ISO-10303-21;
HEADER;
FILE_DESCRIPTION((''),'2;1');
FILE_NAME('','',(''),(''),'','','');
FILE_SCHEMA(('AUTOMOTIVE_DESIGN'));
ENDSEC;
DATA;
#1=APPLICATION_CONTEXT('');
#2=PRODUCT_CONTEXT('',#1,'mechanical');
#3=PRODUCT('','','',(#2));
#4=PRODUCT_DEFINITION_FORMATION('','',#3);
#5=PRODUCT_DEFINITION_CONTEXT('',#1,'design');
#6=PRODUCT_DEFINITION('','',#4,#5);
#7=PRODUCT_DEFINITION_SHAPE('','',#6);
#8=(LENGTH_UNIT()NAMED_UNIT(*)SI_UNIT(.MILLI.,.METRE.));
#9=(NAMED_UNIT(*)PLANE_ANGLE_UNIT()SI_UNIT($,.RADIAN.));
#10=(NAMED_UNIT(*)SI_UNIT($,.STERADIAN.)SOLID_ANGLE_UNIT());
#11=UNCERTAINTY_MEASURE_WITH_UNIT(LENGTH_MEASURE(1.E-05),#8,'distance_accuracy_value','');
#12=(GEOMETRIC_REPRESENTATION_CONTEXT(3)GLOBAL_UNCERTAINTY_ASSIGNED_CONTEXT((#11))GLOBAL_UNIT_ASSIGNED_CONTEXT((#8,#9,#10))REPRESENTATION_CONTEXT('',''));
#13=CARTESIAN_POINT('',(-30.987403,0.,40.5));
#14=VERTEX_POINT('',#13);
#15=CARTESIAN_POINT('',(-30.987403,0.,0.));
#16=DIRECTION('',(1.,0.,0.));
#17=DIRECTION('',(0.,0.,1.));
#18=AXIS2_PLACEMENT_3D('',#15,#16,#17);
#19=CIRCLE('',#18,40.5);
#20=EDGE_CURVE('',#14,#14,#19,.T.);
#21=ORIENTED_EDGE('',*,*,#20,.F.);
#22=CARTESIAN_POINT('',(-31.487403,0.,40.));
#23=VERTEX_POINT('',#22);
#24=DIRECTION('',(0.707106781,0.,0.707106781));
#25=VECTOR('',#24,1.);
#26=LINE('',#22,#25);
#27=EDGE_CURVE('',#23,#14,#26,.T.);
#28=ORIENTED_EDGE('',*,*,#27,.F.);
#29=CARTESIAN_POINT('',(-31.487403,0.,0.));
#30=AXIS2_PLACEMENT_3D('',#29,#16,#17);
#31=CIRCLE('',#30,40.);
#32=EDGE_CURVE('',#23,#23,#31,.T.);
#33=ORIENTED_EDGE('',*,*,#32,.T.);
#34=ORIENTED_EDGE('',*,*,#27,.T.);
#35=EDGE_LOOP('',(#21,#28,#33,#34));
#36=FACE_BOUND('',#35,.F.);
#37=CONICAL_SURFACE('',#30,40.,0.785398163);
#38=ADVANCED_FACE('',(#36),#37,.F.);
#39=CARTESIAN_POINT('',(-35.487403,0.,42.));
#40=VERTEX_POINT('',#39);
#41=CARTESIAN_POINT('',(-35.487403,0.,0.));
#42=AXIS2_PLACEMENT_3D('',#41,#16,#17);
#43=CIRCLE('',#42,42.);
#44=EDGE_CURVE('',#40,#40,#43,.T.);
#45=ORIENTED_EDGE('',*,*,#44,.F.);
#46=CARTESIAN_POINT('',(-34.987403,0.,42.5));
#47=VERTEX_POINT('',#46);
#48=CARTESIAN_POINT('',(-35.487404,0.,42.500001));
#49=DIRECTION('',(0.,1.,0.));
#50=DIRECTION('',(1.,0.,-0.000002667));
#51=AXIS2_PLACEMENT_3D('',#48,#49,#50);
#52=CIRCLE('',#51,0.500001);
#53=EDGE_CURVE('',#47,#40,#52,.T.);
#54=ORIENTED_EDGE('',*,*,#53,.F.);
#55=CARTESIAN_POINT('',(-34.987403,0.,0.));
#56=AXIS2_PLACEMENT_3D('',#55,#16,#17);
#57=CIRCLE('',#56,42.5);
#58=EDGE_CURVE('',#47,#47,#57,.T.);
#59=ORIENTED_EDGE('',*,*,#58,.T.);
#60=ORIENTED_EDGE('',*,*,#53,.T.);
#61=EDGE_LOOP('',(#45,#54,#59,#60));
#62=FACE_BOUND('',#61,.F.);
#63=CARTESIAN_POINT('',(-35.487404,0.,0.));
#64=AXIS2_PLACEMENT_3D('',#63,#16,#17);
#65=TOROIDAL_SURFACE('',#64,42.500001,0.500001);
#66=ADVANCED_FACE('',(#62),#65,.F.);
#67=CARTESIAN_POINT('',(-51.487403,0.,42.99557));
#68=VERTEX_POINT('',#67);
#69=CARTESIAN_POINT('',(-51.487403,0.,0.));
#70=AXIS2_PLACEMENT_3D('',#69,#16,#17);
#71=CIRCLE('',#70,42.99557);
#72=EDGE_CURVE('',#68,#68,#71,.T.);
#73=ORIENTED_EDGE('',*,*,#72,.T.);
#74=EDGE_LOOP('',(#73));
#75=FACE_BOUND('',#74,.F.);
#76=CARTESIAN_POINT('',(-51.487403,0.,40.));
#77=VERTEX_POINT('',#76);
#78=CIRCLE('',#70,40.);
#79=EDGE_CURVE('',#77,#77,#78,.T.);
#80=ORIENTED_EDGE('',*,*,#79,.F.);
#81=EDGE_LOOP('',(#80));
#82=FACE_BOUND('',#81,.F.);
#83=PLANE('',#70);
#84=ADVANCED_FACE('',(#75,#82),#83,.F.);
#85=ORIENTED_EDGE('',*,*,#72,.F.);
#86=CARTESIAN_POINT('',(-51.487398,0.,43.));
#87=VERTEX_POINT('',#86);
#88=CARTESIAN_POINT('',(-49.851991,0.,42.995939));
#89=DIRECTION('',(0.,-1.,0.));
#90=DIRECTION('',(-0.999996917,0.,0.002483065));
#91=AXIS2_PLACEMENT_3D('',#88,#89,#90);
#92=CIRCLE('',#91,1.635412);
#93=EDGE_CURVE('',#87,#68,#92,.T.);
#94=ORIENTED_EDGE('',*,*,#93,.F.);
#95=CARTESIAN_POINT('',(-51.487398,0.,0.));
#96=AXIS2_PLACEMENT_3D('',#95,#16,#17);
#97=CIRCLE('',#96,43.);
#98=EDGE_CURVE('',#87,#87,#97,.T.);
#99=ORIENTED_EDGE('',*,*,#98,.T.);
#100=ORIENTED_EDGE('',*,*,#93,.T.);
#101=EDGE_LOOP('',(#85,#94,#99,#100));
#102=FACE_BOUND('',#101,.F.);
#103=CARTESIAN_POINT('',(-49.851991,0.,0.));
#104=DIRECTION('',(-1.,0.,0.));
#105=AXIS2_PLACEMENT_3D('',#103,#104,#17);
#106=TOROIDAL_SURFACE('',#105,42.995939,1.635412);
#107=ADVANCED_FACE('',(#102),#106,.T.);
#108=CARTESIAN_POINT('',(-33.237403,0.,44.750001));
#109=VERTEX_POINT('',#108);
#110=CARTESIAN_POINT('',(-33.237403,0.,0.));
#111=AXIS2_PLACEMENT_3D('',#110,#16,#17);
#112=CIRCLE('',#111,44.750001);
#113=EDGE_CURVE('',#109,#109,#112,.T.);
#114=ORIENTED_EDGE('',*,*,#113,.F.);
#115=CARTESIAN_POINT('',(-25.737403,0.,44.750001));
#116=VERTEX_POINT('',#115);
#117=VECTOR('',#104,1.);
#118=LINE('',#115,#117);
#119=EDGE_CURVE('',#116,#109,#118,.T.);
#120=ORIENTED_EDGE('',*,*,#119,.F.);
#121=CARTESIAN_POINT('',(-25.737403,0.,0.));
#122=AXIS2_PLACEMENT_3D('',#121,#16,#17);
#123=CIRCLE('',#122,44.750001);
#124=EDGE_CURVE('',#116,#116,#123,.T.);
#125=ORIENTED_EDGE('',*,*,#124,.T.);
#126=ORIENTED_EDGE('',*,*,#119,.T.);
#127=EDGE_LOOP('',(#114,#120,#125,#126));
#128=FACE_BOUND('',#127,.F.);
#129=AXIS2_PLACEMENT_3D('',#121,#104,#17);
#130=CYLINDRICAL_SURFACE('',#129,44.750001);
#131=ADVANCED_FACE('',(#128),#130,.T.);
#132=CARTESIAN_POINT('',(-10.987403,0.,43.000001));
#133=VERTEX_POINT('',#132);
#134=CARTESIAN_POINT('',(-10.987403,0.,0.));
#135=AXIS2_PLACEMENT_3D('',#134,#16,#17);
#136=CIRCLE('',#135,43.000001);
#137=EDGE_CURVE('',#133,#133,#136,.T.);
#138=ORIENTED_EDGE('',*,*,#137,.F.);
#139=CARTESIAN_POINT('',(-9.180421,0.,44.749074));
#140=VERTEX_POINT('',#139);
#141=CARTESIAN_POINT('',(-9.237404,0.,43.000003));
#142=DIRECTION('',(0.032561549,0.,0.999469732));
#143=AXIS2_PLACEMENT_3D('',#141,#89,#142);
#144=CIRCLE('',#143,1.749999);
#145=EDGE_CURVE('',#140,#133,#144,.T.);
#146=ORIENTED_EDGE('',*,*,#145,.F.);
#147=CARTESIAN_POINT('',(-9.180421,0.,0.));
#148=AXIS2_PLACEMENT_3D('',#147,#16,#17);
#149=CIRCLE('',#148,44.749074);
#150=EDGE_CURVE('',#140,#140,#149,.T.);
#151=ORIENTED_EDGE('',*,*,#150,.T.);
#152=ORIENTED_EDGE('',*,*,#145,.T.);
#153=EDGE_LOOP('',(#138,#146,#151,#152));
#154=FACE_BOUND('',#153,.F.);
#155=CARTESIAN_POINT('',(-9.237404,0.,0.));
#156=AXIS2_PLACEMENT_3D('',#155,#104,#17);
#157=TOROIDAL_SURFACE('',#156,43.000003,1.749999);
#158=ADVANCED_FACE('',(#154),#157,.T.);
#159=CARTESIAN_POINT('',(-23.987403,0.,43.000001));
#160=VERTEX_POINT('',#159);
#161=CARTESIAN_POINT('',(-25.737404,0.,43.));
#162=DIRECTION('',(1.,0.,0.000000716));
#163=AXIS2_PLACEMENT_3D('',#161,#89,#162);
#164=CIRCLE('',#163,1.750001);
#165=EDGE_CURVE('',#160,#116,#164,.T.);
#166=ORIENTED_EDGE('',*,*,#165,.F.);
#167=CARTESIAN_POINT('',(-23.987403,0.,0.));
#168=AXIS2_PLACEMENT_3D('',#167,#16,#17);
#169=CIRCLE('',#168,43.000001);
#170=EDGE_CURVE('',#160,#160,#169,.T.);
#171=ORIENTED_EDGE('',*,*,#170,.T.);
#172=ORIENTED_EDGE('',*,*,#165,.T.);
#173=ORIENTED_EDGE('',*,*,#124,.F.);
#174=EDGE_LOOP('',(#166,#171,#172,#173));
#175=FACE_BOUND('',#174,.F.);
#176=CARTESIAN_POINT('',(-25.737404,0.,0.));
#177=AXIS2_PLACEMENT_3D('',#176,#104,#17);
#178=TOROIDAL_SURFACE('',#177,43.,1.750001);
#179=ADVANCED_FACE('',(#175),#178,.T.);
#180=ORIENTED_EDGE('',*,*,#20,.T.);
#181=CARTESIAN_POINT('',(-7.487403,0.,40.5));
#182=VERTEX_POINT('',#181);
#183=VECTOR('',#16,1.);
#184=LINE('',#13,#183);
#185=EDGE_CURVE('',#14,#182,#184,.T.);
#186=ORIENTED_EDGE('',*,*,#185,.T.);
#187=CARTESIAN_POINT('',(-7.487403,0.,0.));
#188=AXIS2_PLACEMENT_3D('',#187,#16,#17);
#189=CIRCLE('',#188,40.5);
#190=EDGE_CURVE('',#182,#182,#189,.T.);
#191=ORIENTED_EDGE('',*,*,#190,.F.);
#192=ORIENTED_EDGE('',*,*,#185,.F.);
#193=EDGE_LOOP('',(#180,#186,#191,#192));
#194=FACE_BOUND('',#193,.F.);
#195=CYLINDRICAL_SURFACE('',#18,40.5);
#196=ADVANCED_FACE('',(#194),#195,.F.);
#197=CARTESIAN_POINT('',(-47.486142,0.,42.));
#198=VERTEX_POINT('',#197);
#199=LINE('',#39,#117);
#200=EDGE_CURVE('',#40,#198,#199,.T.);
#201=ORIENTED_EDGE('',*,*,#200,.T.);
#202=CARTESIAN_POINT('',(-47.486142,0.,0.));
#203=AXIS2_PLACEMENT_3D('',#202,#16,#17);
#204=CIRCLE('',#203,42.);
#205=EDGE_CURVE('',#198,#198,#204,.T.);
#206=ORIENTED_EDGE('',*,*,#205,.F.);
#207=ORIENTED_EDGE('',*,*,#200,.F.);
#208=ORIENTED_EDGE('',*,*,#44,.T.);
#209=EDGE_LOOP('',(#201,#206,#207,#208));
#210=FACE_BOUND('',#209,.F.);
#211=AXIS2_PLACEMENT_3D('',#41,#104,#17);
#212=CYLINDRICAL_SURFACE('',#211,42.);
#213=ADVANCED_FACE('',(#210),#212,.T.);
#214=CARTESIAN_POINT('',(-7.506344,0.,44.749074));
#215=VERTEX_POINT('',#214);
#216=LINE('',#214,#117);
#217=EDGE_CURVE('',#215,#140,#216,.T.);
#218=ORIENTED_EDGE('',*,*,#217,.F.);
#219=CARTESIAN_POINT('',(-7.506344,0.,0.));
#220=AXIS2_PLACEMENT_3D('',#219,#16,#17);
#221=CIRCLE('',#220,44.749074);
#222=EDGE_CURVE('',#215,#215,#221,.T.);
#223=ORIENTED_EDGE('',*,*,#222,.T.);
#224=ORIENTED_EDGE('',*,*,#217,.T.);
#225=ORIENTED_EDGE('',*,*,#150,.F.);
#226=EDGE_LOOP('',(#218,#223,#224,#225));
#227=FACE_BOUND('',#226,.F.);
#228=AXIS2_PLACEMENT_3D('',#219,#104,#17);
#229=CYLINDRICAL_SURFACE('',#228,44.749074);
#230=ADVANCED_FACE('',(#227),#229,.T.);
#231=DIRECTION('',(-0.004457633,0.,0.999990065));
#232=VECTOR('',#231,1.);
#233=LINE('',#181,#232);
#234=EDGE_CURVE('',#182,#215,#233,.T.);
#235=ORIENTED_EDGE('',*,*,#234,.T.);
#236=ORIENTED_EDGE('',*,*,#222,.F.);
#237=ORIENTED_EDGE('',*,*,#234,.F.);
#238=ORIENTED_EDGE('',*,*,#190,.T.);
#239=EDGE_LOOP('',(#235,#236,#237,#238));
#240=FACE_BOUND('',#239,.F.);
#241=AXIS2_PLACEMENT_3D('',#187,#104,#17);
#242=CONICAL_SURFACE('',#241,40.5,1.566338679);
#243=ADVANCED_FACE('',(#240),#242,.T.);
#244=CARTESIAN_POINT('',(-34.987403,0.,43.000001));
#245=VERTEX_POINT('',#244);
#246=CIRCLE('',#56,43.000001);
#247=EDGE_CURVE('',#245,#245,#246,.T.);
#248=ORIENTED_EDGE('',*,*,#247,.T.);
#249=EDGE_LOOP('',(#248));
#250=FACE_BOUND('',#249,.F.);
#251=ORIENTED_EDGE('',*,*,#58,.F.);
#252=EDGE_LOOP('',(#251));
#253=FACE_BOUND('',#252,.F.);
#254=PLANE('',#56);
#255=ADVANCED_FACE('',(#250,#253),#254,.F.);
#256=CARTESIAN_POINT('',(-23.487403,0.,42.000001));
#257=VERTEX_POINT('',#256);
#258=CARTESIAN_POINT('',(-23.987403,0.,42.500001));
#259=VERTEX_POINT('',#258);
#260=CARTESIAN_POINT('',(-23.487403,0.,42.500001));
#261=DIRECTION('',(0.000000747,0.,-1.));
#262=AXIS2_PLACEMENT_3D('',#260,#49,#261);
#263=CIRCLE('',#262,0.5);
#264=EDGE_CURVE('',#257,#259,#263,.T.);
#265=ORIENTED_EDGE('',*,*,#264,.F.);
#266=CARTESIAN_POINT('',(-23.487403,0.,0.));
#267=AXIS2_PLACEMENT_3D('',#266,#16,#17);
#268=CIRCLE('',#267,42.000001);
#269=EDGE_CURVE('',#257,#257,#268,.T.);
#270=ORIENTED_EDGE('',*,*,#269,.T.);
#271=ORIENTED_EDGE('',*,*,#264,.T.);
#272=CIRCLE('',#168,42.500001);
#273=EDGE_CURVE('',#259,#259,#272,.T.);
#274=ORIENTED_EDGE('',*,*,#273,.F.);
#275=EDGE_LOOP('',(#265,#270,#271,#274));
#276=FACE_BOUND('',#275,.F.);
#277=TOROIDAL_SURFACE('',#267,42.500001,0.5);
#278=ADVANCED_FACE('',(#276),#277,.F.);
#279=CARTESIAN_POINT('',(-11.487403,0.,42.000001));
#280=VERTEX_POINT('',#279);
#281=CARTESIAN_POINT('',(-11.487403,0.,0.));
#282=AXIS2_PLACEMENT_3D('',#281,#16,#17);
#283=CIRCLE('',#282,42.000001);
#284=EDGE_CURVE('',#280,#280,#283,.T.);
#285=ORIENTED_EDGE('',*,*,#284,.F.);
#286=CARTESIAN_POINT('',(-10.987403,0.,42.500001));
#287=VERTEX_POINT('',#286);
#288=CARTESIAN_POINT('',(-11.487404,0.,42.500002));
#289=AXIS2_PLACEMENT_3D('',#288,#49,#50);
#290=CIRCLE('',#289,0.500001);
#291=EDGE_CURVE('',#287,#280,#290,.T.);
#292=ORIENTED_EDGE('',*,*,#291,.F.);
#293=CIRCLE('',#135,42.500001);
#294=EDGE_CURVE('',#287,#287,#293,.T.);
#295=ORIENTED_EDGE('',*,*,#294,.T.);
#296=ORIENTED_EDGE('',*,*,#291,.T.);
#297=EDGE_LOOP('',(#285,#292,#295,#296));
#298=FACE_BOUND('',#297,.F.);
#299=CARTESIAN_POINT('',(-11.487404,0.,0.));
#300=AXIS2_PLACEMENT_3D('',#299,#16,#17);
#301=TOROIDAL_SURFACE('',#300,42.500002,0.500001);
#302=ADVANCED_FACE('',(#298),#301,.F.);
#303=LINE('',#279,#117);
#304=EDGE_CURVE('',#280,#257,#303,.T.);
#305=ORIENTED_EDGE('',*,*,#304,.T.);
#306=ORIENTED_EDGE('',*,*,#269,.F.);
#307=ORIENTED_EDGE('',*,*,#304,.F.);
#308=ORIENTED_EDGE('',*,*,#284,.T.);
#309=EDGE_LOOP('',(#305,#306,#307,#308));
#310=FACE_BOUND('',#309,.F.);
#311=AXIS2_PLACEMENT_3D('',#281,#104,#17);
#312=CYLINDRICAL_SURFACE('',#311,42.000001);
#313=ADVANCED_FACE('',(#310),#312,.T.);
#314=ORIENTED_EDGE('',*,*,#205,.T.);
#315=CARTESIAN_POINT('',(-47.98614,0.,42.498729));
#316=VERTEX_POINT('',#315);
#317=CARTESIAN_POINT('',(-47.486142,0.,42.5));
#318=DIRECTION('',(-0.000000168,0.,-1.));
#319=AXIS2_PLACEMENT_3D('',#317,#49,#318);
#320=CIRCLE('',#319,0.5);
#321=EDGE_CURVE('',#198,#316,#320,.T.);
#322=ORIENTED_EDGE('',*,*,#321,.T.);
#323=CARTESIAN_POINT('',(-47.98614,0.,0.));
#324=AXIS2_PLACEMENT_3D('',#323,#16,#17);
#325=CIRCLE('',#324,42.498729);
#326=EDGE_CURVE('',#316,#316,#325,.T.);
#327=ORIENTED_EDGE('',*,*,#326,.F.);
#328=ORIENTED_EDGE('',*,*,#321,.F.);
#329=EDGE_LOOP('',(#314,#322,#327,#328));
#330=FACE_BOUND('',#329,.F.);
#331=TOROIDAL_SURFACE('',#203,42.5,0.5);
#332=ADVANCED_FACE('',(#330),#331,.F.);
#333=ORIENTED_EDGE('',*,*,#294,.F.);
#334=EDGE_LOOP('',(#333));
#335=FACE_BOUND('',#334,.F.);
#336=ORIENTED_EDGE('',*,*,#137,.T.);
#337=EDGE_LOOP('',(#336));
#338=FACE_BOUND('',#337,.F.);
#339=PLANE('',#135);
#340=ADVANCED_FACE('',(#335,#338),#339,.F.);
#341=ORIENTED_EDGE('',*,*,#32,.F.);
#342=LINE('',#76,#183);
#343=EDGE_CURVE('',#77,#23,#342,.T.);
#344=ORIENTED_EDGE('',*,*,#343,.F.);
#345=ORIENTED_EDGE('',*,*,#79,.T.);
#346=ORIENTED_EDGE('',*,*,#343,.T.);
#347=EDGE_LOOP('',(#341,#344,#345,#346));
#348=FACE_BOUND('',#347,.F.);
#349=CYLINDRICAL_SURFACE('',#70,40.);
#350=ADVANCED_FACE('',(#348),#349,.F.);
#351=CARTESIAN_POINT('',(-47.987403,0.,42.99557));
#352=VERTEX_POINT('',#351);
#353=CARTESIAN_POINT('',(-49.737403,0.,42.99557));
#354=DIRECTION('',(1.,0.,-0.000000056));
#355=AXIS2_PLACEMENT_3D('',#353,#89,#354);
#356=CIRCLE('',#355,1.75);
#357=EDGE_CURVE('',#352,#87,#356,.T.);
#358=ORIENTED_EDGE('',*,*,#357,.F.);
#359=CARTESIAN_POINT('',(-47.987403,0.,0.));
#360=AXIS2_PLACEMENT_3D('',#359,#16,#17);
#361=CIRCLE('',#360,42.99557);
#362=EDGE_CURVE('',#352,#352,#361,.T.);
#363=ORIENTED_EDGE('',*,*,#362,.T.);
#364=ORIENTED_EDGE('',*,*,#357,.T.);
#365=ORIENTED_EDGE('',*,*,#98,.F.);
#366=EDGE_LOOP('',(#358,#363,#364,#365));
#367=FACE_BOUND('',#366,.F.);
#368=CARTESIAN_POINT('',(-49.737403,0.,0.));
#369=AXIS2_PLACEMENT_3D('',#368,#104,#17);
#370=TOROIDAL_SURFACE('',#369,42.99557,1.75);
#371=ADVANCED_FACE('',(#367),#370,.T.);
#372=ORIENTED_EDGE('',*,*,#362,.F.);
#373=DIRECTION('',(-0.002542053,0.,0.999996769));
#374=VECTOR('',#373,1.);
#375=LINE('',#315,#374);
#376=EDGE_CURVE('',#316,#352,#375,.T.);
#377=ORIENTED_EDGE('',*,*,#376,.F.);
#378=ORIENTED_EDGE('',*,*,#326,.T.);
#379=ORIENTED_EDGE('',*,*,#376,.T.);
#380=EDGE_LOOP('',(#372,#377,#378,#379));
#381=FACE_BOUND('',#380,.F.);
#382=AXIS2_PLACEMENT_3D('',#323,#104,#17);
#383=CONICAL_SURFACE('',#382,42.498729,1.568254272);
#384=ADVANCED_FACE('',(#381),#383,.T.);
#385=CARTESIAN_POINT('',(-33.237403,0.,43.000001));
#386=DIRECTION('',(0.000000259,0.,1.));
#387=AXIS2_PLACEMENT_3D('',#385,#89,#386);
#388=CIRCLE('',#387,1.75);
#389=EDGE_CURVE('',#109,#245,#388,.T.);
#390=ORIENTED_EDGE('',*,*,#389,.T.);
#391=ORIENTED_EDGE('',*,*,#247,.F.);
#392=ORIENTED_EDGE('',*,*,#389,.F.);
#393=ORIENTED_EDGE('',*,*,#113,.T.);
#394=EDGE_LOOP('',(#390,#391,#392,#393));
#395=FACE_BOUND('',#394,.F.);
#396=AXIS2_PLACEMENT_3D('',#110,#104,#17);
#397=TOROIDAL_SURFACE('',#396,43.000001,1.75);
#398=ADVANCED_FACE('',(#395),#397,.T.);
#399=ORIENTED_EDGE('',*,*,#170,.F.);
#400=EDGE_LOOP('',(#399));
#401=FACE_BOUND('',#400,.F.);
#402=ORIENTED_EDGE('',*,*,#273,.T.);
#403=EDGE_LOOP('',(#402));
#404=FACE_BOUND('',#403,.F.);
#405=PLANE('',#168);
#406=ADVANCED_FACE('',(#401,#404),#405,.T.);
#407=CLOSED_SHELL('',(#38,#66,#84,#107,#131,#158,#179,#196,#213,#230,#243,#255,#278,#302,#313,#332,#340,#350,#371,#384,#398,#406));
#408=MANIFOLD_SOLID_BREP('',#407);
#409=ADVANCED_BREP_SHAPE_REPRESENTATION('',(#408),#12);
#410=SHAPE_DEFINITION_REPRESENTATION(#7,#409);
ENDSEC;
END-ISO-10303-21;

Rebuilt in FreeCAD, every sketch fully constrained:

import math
import FreeCAD as App
import Part
import Sketcher
Q = App.Units.Quantity

doc = App.newDocument("Part")
body = doc.addObject("PartDesign::Body", "Body")

# Sketch on XZ plane
sketch1 = body.newObject("Sketcher::SketchObject", "Sketch")
sketch1.AttachmentSupport = (doc.getObject("XZ_Plane"), [""])
sketch1.MapMode = "FlatFace"
sketch1.addGeometry([
    Part.LineSegment(App.Vector(-51.4874, 40, 0), App.Vector(-31.4874, 40, 0)),  # 0
    Part.LineSegment(App.Vector(-31.4874, 40, 0), App.Vector(-30.9874, 40.5, 0)),  # 1
    Part.LineSegment(App.Vector(-30.9874, 40.5, 0), App.Vector(-7.4874, 40.5, 0)),  # 2
    Part.LineSegment(App.Vector(-7.4874, 40.5, 0), App.Vector(-7.5063, 44.7491, 0)),  # 3
    Part.LineSegment(App.Vector(-7.5063, 44.7491, 0), App.Vector(-9.1804, 44.7491, 0)),  # 4
    Part.ArcOfCircle(Part.Circle(App.Vector(-9.2374, 43, 0), App.Vector(0, 0, 1), 1.75), math.radians(88), math.radians(180)),  # 5
    Part.LineSegment(App.Vector(-10.9874, 43, 0), App.Vector(-10.9874, 42.5, 0)),  # 6
    Part.ArcOfCircle(Part.Circle(App.Vector(-11.4874, 42.5, 0), App.Vector(0, 0, 1), 0.5), math.radians(-90), math.radians(0)),  # 7
    Part.LineSegment(App.Vector(-11.4874, 42, 0), App.Vector(-23.4874, 42, 0)),  # 8
    Part.ArcOfCircle(Part.Circle(App.Vector(-23.4874, 42.5, 0), App.Vector(0, 0, 1), 0.5), math.radians(180), math.radians(270)),  # 9
    Part.LineSegment(App.Vector(-23.9874, 42.5, 0), App.Vector(-23.9874, 43, 0)),  # 10
    Part.ArcOfCircle(Part.Circle(App.Vector(-25.7374, 43, 0), App.Vector(0, 0, 1), 1.75), math.radians(0), math.radians(90)),  # 11
    Part.LineSegment(App.Vector(-25.7374, 44.75, 0), App.Vector(-33.2374, 44.75, 0)),  # 12
    Part.ArcOfCircle(Part.Circle(App.Vector(-33.2374, 43, 0), App.Vector(0, 0, 1), 1.75), math.radians(90), math.radians(180)),  # 13
    Part.LineSegment(App.Vector(-34.9874, 43, 0), App.Vector(-34.9874, 42.5, 0)),  # 14
    Part.ArcOfCircle(Part.Circle(App.Vector(-35.4874, 42.5, 0), App.Vector(0, 0, 1), 0.5), math.radians(-90), math.radians(0)),  # 15
    Part.LineSegment(App.Vector(-35.4874, 42, 0), App.Vector(-47.4861, 42, 0)),  # 16
    Part.ArcOfCircle(Part.Circle(App.Vector(-47.4861, 42.5, 0), App.Vector(0, 0, 1), 0.5), math.radians(-180), math.radians(-90)),  # 17
    Part.LineSegment(App.Vector(-47.9861, 42.4987, 0), App.Vector(-47.9874, 42.9956, 0)),  # 18
    Part.ArcOfCircle(Part.Circle(App.Vector(-49.7374, 42.9956, 0), App.Vector(0, 0, 1), 1.75), math.radians(0), math.radians(180)),  # 19
    Part.ArcOfCircle(Part.Circle(App.Vector(-49.852, 42.9959, 0), App.Vector(0, 0, 1), 1.6354), math.radians(179.86), math.radians(180.01)),  # 20
    Part.LineSegment(App.Vector(-51.4874, 42.9956, 0), App.Vector(-51.4874, 40, 0)),  # 21
], False)
sketch1.addConstraint([
    Sketcher.Constraint("Coincident", 0, 2, 1, 1),
    Sketcher.Constraint("Coincident", 1, 2, 2, 1),
    Sketcher.Constraint("Coincident", 2, 2, 3, 1),
    Sketcher.Constraint("Coincident", 3, 2, 4, 1),
    Sketcher.Constraint("Coincident", 4, 2, 5, 1),
    Sketcher.Constraint("Tangent", 5, 2, 6, 1),
    Sketcher.Constraint("Coincident", 6, 2, 7, 2),
    Sketcher.Constraint("Coincident", 7, 1, 8, 1),
    Sketcher.Constraint("Tangent", 8, 2, 9, 2),
    Sketcher.Constraint("Tangent", 9, 1, 10, 1),
    Sketcher.Constraint("Tangent", 10, 2, 11, 1),
    Sketcher.Constraint("Tangent", 11, 2, 12, 1),
    Sketcher.Constraint("Tangent", 12, 2, 13, 1),
    Sketcher.Constraint("Tangent", 13, 2, 14, 1),
    Sketcher.Constraint("Coincident", 14, 2, 15, 2),
    Sketcher.Constraint("Coincident", 15, 1, 16, 1),
    Sketcher.Constraint("Tangent", 16, 2, 17, 2),
    Sketcher.Constraint("Tangent", 17, 1, 18, 1),
    Sketcher.Constraint("Coincident", 18, 2, 19, 1),
    Sketcher.Constraint("Coincident", 19, 2, 20, 1),
    Sketcher.Constraint("Coincident", 20, 2, 21, 1),
    Sketcher.Constraint("Coincident", 21, 2, 0, 1),
    Sketcher.Constraint("Horizontal", 0),
    Sketcher.Constraint("Horizontal", 2),
    Sketcher.Constraint("Horizontal", 4),
    Sketcher.Constraint("Vertical", 6),
    Sketcher.Constraint("Horizontal", 8),
    Sketcher.Constraint("Vertical", 10),
    Sketcher.Constraint("Horizontal", 12),
    Sketcher.Constraint("Vertical", 14),
    Sketcher.Constraint("Horizontal", 16),
    Sketcher.Constraint("Vertical", 21),
    Sketcher.Constraint("Equal", 7, 9),
    Sketcher.Constraint("Equal", 5, 11),
    Sketcher.Constraint("Equal", 11, 13),
    Sketcher.Constraint("Equal", 9, 15),
    Sketcher.Constraint("Equal", 15, 17),
    Sketcher.Constraint("Equal", 13, 19),
    Sketcher.Constraint("Horizontal", 9, 3, 15, 3),
    Sketcher.Constraint("Horizontal", 13, 3, 5, 2),
    Sketcher.Constraint("Horizontal", 17, 3, 6, 2),
    Sketcher.Constraint("Horizontal", 9, 1, 14, 2),
    Sketcher.Constraint("Horizontal", 19, 3, 18, 2),
    Sketcher.Constraint("Horizontal", 13, 2, 19, 2),
    Sketcher.Constraint("Horizontal", 18, 2, 20, 2),
    Sketcher.Constraint("Radius", 7, Q("0.500001 mm")),
    Sketcher.Constraint("DistanceX", 0, 1, 0, 2, Q("20 mm")),
    Sketcher.Constraint("DistanceX", 8, 2, 8, 1, Q("12 mm")),
    Sketcher.Constraint("Angle", 1, Q("45 deg")),
    Sketcher.Constraint("Radius", 5, Q("1.749999 mm")),
    Sketcher.Constraint("DistanceX", 2, 1, 2, 2, Q("23.5 mm")),
    Sketcher.Constraint("DistanceX", 12, 2, 12, 1, Q("7.5 mm")),
    Sketcher.Constraint("DistanceY", 6, 2, 6, 1, Q("0.5 mm")),
    Sketcher.Constraint("DistanceY", -1, 1, 11, 3, Q("43 mm")),
    Sketcher.Constraint("DistanceY", -1, 1, 0, 2, Q("40 mm")),
    Sketcher.Constraint("DistanceX", 9, 3, 7, 3, Q("11.999999 mm")),
    Sketcher.Constraint("DistanceX", 19, 3, 11, 3, Q("23.999999 mm")),
    Sketcher.Constraint("DistanceY", 1, 2, 15, 3, Q("2.000001 mm")),
    Sketcher.Constraint("DistanceX", 15, 1, 14, 2, Q("0.5 mm")),
    Sketcher.Constraint("Radius", 20, Q("1.635412 mm")),
    Sketcher.Constraint("DistanceX", 16, 2, 16, 1, Q("11.998739 mm")),
    Sketcher.Constraint("DistanceY", 21, 2, 21, 1, Q("2.99557 mm")),
    Sketcher.Constraint("DistanceX", 4, 2, 4, 1, Q("1.674077 mm")),
    Sketcher.Constraint("DistanceX", 17, 3, -1, 1, Q("47.486142 mm")),
    Sketcher.Constraint("DistanceY", -1, 1, 20, 3, Q("42.995939 mm")),
    Sketcher.Constraint("DistanceX", 4, 2, -1, 1, Q("9.180421 mm")),
])
revolution = body.newObject("PartDesign::Revolution", "Revolution")
revolution.Profile = sketch1
revolution.ReferenceAxis = (sketch1, ["H_Axis"])
revolution.Angle = 360

doc.recompute()
